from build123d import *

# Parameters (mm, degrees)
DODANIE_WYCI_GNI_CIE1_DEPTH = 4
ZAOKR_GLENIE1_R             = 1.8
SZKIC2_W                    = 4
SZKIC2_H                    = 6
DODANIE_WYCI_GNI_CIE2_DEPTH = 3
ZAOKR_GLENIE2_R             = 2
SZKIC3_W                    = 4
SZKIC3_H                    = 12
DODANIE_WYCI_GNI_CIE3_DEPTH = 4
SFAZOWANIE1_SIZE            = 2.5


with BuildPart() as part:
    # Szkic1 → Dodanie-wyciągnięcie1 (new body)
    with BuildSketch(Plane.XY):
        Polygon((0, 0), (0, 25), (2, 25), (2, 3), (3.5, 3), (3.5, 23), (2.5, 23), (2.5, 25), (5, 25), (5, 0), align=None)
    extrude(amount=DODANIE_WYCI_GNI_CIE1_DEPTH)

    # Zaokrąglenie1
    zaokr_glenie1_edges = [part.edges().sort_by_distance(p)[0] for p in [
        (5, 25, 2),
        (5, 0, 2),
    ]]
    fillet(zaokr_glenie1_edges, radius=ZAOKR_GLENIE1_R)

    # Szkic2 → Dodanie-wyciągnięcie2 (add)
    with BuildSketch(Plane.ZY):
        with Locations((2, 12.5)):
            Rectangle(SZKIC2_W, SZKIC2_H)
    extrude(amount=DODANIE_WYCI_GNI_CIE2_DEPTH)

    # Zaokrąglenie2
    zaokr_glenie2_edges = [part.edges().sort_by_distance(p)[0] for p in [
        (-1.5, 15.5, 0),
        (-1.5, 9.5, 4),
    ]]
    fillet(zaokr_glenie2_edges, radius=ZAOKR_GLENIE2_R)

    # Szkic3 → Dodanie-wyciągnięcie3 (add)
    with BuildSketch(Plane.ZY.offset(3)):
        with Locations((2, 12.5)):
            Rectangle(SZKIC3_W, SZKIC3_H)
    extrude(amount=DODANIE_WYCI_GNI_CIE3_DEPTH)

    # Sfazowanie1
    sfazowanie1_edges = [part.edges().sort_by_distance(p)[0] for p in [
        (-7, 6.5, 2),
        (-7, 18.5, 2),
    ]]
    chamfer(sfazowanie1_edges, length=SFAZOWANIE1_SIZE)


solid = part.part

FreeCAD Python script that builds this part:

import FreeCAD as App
import Part
import Sketcher
Q = App.Units.Quantity


def edges_at(feature, points):
    """Names of the edges that pass closest to the given points."""
    edges = feature.Shape.Edges
    near = lambda p: min(range(len(edges)), key=lambda i: edges[i].distToShape(Part.Vertex(*p))[0])
    return sorted({f"Edge{near(p) + 1}" for p in points})


def add_polygon(sketch, points):
    """Adds a closed chain of lines whose ends are joined by coincident constraints."""
    first, n = sketch.GeometryCount, len(points)
    for a, b in zip(points, points[1:] + points[:1]):
        sketch.addGeometry(Part.LineSegment(App.Vector(*a, 0), App.Vector(*b, 0)), False)
    for i in range(n):
        sketch.addConstraint(Sketcher.Constraint("Coincident", first + i, 2, first + (i + 1) % n, 1))

doc = App.newDocument("Part")
body = doc.addObject("PartDesign::Body", "Body")

# Sketch on XY plane
sketch1 = body.newObject("Sketcher::SketchObject", "Sketch")
sketch1.AttachmentSupport = (doc.getObject("XY_Plane"), [""])
sketch1.MapMode = "FlatFace"
add_polygon(sketch1, [(0, 25), (0, 0), (5, 0), (5, 25), (2.5, 25), (2.5, 23), (3.5, 23), (3.5, 3), (2, 3), (2, 25)])  # lines 0-9
sketch1.addConstraint(Sketcher.Constraint("Vertical", 0))
sketch1.addConstraint(Sketcher.Constraint("Horizontal", 1))
sketch1.addConstraint(Sketcher.Constraint("Vertical", 2))
sketch1.addConstraint(Sketcher.Constraint("Horizontal", 3))
sketch1.addConstraint(Sketcher.Constraint("Vertical", 4))
sketch1.addConstraint(Sketcher.Constraint("Horizontal", 5))
sketch1.addConstraint(Sketcher.Constraint("Vertical", 6))
sketch1.addConstraint(Sketcher.Constraint("Horizontal", 7))
sketch1.addConstraint(Sketcher.Constraint("Vertical", 8))
sketch1.addConstraint(Sketcher.Constraint("Horizontal", 9))
sketch1.addConstraint(Sketcher.Constraint("Coincident", 0, 2, -1, 1))
sketch1.addConstraint(Sketcher.Constraint("Horizontal", 3, 2, 8, 2))
sketch1.addConstraint(Sketcher.Constraint("Equal", 9, 4))
sketch1.addConstraint(Sketcher.Constraint("DistanceX", 1, 1, 1, 2, Q("5 mm")))
sketch1.addConstraint(Sketcher.Constraint("DistanceX", 5, 1, 5, 2, Q("1 mm")))
sketch1.addConstraint(Sketcher.Constraint("DistanceX", 9, 2, 9, 1, Q("2 mm")))
sketch1.addConstraint(Sketcher.Constraint("DistanceY", 0, 2, 0, 1, Q("25 mm")))
sketch1.addConstraint(Sketcher.Constraint("DistanceY", 6, 2, 6, 1, Q("20 mm")))
sketch1.addConstraint(Sketcher.Constraint("DistanceX", 3, 2, 3, 1, Q("2.5 mm")))
pad1 = body.newObject("PartDesign::Pad", "Pad")
pad1.Profile = sketch1
pad1.Length = 4
doc.recompute()

fillet = body.newObject("PartDesign::Fillet", "Fillet")
fillet.Base = (pad1, edges_at(pad1, [(5, 25, 2), (5, 0, 2)]))
fillet.Radius = 1.8

# Sketch on YZ plane
sketch2 = body.newObject("Sketcher::SketchObject", "Sketch001")
sketch2.AttachmentSupport = (doc.getObject("YZ_Plane"), [""])
sketch2.MapMode = "FlatFace"
add_polygon(sketch2, [(15.5, 0), (9.5, 0), (9.5, 4), (15.5, 4)])  # lines 0-3
sketch2.addConstraint(Sketcher.Constraint("Horizontal", 0))
sketch2.addConstraint(Sketcher.Constraint("Vertical", 1))
sketch2.addConstraint(Sketcher.Constraint("Horizontal", 2))
sketch2.addConstraint(Sketcher.Constraint("Vertical", 3))
sketch2.addConstraint(Sketcher.Constraint("PointOnObject", 0, 2, -1))
sketch2.addConstraint(Sketcher.Constraint("DistanceX", 0, 2, 0, 1, Q("6 mm")))
sketch2.addConstraint(Sketcher.Constraint("DistanceY", 1, 1, 1, 2, Q("4 mm")))
sketch2.addConstraint(Sketcher.Constraint("DistanceX", -1, 1, 0, 2, Q("9.5 mm")))
pad2 = body.newObject("PartDesign::Pad", "Pad001")
pad2.Profile = sketch2
pad2.Length = 3
pad2.Reversed = True
doc.recompute()

fillet2 = body.newObject("PartDesign::Fillet", "Fillet001")
fillet2.Base = (pad2, edges_at(pad2, [(-1.5, 15.5, 0), (-1.5, 9.5, 4)]))
fillet2.Radius = 2

# Sketch on YZ plane
sketch3 = body.newObject("Sketcher::SketchObject", "Sketch002")
sketch3.AttachmentSupport = (doc.getObject("YZ_Plane"), [""])
sketch3.MapMode = "FlatFace"
sketch3.AttachmentOffset = App.Placement(App.Vector(0, 0, -3), App.Rotation())
add_polygon(sketch3, [(18.5, 0), (6.5, 0), (6.5, 4), (18.5, 4)])  # lines 0-3
sketch3.addConstraint(Sketcher.Constraint("Horizontal", 0))
sketch3.addConstraint(Sketcher.Constraint("Vertical", 1))
sketch3.addConstraint(Sketcher.Constraint("Horizontal", 2))
sketch3.addConstraint(Sketcher.Constraint("Vertical", 3))
sketch3.addConstraint(Sketcher.Constraint("PointOnObject", 0, 2, -1))
sketch3.addConstraint(Sketcher.Constraint("DistanceX", 0, 2, 0, 1, Q("12 mm")))
sketch3.addConstraint(Sketcher.Constraint("DistanceY", 1, 1, 1, 2, Q("4 mm")))
sketch3.addConstraint(Sketcher.Constraint("DistanceX", -1, 1, 0, 2, Q("6.5 mm")))
pad3 = body.newObject("PartDesign::Pad", "Pad002")
pad3.Profile = sketch3
pad3.Length = 4
pad3.Reversed = True
doc.recompute()

chamfer = body.newObject("PartDesign::Chamfer", "Chamfer")
chamfer.Base = (pad3, edges_at(pad3, [(-7, 6.5, 2), (-7, 18.5, 2)]))
chamfer.Size = 2.5

doc.recompute()
